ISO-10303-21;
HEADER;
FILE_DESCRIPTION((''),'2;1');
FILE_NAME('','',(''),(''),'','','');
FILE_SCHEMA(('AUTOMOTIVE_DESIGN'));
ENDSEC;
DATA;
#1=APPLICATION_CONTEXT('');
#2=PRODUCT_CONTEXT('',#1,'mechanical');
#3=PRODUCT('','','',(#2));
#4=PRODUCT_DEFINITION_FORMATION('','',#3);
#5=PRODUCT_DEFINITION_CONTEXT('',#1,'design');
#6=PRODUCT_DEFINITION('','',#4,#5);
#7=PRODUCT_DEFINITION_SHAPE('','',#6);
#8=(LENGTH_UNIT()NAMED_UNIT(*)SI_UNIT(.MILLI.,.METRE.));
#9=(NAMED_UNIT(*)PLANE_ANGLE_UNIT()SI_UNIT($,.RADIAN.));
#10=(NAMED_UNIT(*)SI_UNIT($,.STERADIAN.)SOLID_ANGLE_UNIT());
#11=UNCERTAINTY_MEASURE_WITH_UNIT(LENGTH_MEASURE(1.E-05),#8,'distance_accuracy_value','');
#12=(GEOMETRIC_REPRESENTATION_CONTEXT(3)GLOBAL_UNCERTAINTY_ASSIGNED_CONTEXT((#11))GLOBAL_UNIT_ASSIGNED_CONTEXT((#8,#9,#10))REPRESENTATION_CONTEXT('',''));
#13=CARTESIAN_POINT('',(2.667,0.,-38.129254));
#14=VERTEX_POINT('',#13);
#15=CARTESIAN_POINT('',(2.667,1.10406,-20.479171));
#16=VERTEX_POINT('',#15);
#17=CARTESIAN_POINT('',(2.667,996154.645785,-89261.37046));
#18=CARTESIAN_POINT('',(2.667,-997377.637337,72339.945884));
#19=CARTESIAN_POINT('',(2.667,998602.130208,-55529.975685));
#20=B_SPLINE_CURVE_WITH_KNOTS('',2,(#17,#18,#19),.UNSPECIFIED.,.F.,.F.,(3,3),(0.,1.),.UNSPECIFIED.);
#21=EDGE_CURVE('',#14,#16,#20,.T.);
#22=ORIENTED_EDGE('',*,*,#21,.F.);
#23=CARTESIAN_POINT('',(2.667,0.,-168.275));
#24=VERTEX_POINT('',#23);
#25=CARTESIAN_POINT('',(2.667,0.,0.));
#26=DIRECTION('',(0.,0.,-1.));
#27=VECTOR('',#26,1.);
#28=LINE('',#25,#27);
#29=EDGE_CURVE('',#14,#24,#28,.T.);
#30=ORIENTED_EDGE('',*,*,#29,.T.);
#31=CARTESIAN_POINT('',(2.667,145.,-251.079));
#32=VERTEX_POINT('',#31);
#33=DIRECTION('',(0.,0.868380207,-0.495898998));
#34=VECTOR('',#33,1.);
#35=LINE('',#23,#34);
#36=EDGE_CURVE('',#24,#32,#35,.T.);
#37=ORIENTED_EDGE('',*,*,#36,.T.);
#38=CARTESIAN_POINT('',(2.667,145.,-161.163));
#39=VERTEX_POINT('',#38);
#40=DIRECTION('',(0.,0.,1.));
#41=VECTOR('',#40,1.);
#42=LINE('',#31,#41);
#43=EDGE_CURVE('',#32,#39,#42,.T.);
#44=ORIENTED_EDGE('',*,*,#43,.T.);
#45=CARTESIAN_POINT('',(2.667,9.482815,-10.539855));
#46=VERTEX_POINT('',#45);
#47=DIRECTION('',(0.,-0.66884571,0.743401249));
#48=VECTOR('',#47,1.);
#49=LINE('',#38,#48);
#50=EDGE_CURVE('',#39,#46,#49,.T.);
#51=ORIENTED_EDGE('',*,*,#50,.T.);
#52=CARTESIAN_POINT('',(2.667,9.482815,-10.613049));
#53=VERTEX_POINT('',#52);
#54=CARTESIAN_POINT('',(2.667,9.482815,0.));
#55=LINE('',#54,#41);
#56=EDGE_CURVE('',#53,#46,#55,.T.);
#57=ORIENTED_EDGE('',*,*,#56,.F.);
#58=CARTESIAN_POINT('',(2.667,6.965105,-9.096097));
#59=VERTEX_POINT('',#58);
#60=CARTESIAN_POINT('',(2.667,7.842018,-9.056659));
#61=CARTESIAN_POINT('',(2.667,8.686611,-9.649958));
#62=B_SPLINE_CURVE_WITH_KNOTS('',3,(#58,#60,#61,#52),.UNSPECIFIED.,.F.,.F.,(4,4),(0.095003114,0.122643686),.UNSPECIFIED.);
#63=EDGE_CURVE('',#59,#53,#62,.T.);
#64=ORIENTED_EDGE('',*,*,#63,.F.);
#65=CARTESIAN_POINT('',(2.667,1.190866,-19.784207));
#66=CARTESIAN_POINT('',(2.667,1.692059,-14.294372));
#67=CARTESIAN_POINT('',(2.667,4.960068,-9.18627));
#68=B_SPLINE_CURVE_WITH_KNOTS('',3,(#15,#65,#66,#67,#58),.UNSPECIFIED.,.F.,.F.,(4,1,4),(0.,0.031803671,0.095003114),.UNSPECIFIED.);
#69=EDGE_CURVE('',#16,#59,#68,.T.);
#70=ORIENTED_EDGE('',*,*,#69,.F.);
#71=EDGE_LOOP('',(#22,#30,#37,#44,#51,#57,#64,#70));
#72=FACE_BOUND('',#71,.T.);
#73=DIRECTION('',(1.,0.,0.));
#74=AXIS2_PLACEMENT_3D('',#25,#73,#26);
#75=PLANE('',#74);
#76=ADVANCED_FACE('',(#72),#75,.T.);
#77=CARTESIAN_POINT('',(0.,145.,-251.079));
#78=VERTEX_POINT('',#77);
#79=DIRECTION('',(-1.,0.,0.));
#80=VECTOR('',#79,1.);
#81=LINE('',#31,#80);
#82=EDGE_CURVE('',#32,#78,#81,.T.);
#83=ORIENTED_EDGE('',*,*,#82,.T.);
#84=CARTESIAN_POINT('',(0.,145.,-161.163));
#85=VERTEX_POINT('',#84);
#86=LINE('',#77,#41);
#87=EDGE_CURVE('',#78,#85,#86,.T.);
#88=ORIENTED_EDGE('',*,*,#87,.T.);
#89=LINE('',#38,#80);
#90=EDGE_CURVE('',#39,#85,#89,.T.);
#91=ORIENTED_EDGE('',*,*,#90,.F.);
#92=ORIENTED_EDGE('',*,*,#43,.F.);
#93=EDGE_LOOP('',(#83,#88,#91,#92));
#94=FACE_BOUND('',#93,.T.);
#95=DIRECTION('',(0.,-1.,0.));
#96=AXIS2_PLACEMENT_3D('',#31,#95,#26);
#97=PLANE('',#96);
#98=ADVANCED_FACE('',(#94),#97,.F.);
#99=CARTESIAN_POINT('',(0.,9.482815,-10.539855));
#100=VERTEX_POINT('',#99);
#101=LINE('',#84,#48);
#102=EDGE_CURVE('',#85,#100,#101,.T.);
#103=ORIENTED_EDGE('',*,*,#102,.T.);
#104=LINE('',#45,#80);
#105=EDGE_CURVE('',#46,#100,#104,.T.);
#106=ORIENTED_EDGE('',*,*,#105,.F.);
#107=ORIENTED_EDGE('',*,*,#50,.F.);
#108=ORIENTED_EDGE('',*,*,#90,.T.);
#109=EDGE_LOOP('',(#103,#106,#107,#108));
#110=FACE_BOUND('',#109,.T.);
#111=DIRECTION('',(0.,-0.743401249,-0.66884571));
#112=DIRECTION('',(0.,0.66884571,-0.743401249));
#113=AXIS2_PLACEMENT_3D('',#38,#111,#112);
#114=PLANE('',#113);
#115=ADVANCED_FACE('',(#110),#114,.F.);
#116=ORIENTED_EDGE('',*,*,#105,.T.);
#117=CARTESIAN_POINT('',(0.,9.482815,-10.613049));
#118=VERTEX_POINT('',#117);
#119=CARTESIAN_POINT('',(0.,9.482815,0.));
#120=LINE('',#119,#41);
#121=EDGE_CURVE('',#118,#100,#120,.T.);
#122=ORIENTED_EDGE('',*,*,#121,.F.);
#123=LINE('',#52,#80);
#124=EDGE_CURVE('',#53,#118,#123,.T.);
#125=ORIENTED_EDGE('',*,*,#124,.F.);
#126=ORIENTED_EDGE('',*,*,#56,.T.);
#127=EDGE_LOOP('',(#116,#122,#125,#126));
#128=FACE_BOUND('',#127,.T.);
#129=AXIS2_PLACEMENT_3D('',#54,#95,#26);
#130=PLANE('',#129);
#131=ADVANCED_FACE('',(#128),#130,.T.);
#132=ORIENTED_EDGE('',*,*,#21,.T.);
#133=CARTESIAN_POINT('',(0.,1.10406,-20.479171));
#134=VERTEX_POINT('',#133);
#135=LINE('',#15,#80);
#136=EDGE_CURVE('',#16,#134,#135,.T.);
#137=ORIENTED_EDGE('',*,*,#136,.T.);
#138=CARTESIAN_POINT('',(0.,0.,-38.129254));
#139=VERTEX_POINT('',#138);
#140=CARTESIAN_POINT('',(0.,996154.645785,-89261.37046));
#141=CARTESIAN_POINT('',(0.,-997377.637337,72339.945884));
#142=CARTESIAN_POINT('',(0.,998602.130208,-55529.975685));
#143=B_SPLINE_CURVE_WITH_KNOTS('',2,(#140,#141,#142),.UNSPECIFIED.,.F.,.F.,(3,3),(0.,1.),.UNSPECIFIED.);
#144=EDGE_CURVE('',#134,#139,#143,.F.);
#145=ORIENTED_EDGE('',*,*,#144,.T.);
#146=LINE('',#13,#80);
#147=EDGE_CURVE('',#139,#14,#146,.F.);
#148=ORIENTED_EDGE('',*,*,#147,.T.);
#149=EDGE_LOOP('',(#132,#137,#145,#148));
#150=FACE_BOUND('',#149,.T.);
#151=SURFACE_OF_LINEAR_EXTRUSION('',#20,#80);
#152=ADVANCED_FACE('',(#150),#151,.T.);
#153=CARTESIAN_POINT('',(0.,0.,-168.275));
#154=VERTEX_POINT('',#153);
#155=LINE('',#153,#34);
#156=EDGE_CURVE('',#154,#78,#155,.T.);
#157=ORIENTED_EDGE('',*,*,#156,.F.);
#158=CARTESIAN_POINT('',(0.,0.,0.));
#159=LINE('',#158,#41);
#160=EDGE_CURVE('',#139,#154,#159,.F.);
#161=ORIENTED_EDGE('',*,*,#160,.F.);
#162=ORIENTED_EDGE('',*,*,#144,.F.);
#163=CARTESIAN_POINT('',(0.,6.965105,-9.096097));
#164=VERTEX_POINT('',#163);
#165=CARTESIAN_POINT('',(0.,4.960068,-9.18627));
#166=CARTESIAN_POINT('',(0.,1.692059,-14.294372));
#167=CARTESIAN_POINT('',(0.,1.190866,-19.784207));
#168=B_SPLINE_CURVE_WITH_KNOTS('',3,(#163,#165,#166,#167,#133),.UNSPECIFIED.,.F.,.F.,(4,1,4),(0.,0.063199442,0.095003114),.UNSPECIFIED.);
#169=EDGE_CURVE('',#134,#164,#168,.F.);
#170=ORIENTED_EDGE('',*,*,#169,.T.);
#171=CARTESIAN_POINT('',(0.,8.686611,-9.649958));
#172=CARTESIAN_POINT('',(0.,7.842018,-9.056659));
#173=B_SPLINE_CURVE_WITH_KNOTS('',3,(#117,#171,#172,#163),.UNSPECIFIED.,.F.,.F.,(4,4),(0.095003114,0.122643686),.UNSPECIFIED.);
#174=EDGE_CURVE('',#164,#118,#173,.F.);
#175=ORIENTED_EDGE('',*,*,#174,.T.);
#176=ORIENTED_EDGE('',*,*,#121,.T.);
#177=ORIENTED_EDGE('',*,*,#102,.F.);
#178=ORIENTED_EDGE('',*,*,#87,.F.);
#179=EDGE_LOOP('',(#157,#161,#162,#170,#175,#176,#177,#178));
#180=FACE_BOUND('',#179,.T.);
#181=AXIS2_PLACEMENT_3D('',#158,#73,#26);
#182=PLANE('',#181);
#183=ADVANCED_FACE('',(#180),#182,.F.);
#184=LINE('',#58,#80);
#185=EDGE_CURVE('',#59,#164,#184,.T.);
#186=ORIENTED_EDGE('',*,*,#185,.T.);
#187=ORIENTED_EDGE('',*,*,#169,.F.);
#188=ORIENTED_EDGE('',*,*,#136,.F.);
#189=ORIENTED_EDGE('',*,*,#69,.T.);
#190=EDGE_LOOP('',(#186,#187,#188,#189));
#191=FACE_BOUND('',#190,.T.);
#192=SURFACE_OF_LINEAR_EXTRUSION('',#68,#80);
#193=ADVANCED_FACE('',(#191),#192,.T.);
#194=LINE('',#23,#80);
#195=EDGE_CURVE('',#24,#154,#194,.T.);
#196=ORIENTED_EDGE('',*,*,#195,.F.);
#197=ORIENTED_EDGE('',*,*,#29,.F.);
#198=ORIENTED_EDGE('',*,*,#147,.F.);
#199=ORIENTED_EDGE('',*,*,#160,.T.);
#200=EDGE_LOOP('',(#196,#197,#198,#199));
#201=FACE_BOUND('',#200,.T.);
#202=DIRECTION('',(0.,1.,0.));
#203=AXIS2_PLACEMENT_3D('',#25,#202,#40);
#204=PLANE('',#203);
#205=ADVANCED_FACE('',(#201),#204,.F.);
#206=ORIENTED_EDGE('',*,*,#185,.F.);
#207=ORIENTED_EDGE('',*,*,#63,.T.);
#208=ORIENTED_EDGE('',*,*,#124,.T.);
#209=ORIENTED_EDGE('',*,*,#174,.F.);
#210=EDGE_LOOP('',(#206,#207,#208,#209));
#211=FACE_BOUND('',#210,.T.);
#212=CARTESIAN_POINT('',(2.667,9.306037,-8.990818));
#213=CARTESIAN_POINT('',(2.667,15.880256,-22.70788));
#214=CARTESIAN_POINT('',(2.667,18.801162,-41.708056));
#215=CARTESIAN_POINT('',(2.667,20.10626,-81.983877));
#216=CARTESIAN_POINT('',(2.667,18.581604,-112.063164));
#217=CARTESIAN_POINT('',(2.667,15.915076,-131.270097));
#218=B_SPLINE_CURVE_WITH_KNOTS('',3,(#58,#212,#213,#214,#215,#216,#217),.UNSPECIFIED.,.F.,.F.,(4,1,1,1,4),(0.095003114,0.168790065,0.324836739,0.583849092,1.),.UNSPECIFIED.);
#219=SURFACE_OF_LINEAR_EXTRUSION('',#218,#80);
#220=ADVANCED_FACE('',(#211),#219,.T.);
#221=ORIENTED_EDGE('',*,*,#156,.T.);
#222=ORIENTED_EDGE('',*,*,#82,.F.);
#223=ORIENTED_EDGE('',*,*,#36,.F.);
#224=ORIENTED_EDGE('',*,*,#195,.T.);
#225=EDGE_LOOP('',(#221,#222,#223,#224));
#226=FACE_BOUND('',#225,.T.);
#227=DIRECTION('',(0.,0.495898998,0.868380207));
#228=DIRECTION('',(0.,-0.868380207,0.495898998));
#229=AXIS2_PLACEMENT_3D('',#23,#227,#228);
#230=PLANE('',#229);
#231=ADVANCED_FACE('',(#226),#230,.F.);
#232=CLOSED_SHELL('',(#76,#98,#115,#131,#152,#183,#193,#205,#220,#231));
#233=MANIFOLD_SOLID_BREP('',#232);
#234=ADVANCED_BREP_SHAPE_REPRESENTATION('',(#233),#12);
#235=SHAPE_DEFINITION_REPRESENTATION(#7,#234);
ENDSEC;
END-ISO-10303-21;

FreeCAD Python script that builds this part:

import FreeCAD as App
import Part
import Sketcher
Q = App.Units.Quantity

doc = App.newDocument("Part")
body = doc.addObject("PartDesign::Body", "Body")

sketch1 = body.newObject("Sketcher::SketchObject", "Sketch")
sketch1.AttachmentSupport = (doc.getObject("YZ_Plane"), [""])
sketch1.MapMode = "FlatFace"
sketch1.addGeometry([
    Part.LineSegment(App.Vector(0, 0, 0), App.Vector(0, -168.275, 0)),
    Part.LineSegment(App.Vector(0, -168.275, 0), App.Vector(145, -251.079, 0)),
    Part.LineSegment(App.Vector(145, -251.079, 0), App.Vector(145, -161.163, 0)),
    Part.LineSegment(App.Vector(145, -161.163, 0), App.Vector(0, 0, 0)),
], False)
sketch1.addConstraint([
    Sketcher.Constraint("Coincident", 0, 2, 1, 1),
    Sketcher.Constraint("Coincident", 1, 2, 2, 1),
    Sketcher.Constraint("Coincident", 2, 2, 3, 1),
    Sketcher.Constraint("Coincident", 3, 2, 0, 1),
    Sketcher.Constraint("Vertical", 0),
    Sketcher.Constraint("Vertical", 2),
    Sketcher.Constraint("Coincident", 3, 2, -1, 1),
    Sketcher.Constraint("DistanceY", 2, 1, 2, 2, Q("3.54 in")),
    Sketcher.Constraint("DistanceY", 0, 2, 0, 1, Q("6.625 in")),
    Sketcher.Constraint("DistanceY", 1, 2, 0, 2, Q("3.26 in")),
    Sketcher.Constraint("DistanceX", -1, 1, 1, 2, Q("145 mm")),
])
pad1 = body.newObject("PartDesign::Pad", "Pad")
pad1.Profile = sketch1
pad1.Length = Q("0.105 in")

sketch2 = body.newObject("Sketcher::SketchObject", "Sketch001")
sketch2.AttachmentSupport = (doc.getObject("YZ_Plane"), [""])
sketch2.MapMode = "FlatFace"
sketch2.addGeometry([
    Part.LineSegment(App.Vector(-0.000037, -38.268497, 0), App.Vector(-0.136653, 1.603827, 0)),
    Part.LineSegment(App.Vector(-0.136653, 1.603827, 0), App.Vector(9.482815, -7.656992, 0)),
    Part.LineSegment(App.Vector(9.482815, -7.656992, 0), App.Vector(9.482815, -10.613049, 0)),
    Part.BSplineCurve([App.Vector(6.965105, -9.096097, 0), App.Vector(7.842018, -9.056659, 0), App.Vector(8.686611, -9.649958, 0), App.Vector(9.482815, -10.613049, 0)], [4, 4], [0.095003114, 0.122643686], False, 3, [1, 1, 1, 1], False),
    Part.BSplineCurve([App.Vector(1.10406, -20.479171, 0), App.Vector(1.190866, -19.784207, 0), App.Vector(1.692059, -14.294372, 0), App.Vector(4.960068, -9.18627, 0), App.Vector(6.965105, -9.096097, 0)], [4, 1, 4], [0, 0.031803671, 0.095003114], False, 3, [1, 1, 1, 1, 1], False),
    Part.BSplineCurve([App.Vector(-0.000037, -38.268497, 0), App.Vector(-0.001954, -29.333639, 0), App.Vector(1.10406, -20.479171, 0)], [3, 3], [0, 1], False, 2, [1, 1, 1], False),
], False)
sketch2.addConstraint([
    Sketcher.Constraint("Block", 3),
    Sketcher.Constraint("Block", 4),
    Sketcher.Constraint("Block", 5),
    Sketcher.Constraint("Coincident", 0, 2, 1, 1),
    Sketcher.Constraint("Coincident", 1, 2, 2, 1),
    Sketcher.Constraint("Coincident", 2, 2, 3, 2),
    Sketcher.Constraint("Coincident", 5, 1, 0, 1),
    Sketcher.Constraint("Vertical", 2),
    Sketcher.Constraint("DistanceY", 2, 2, 2, 1, Q("2.956057 mm")),
    Sketcher.Constraint("DistanceX", 0, 2, 1, 2, Q("9.619468 mm")),
    Sketcher.Constraint("DistanceY", 1, 2, 0, 2, Q("9.260819 mm")),
])
pocket1 = body.newObject("PartDesign::Pocket", "Pocket")
pocket1.Profile = sketch2
pocket1.Type = "ThroughAll"
pocket1.Reversed = True

doc.recompute()
